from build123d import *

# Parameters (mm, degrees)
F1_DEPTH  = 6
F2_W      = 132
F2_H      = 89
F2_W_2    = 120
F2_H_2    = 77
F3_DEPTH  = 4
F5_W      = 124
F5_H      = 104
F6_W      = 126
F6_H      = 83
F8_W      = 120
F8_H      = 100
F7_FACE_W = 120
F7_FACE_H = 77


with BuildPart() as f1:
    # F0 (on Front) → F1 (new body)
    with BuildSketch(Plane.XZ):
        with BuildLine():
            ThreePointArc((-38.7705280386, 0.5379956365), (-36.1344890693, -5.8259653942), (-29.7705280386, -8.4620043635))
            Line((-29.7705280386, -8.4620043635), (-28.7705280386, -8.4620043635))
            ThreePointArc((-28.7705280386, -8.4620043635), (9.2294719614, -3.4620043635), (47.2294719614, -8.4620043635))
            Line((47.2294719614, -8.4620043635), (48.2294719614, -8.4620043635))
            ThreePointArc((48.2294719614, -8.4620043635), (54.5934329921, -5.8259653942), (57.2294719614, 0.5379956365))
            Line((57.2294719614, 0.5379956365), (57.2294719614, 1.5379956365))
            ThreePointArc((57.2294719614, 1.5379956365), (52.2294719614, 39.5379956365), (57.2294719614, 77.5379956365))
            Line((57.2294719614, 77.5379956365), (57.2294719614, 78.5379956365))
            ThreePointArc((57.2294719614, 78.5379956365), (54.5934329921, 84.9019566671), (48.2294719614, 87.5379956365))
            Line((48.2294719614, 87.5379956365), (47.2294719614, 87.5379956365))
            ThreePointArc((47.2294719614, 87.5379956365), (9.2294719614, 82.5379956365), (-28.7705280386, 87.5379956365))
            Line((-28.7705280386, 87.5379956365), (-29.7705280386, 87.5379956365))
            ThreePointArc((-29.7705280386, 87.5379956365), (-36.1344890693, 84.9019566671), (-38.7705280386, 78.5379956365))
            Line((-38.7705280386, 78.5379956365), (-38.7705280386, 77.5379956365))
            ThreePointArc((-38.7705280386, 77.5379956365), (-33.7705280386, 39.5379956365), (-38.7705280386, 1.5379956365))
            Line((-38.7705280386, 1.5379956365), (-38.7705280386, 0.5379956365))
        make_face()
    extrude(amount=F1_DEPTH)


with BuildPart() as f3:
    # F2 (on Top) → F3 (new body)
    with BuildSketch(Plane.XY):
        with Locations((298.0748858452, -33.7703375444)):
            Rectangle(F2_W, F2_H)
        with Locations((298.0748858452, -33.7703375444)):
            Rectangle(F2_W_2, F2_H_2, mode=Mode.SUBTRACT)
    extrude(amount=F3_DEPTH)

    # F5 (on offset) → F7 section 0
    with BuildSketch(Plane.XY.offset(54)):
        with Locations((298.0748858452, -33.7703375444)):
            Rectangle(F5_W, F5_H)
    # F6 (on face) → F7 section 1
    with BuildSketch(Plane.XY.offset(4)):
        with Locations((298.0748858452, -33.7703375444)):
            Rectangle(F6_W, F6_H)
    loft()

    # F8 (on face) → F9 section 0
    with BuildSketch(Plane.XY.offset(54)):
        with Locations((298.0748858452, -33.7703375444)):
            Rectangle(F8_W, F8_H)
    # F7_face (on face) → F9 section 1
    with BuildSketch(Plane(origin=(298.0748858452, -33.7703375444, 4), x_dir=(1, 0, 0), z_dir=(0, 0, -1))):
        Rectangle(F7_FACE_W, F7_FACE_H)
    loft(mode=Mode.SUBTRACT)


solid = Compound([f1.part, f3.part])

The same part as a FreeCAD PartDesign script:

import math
import FreeCAD as App
import Part
import Sketcher
Q = App.Units.Quantity


def add_polygon(sketch, points):
    """Adds a closed chain of lines whose ends are joined by coincident constraints."""
    first, n = sketch.GeometryCount, len(points)
    for a, b in zip(points, points[1:] + points[:1]):
        sketch.addGeometry(Part.LineSegment(App.Vector(*a, 0), App.Vector(*b, 0)), False)
    for i in range(n):
        sketch.addConstraint(Sketcher.Constraint("Coincident", first + i, 2, first + (i + 1) % n, 1))

doc = App.newDocument("Part")
body = doc.addObject("PartDesign::Body", "Body")

# Sketch on XZ plane
sketch1 = body.newObject("Sketcher::SketchObject", "Sketch")
sketch1.AttachmentSupport = (doc.getObject("XZ_Plane"), [""])
sketch1.MapMode = "FlatFace"
sketch1.addGeometry(Part.ArcOfCircle(Part.Circle(App.Vector(-29.8, 0.5, 0), App.Vector(0, 0, 1), 9), math.radians(180), math.radians(270)), False)
sketch1.addGeometry(Part.LineSegment(App.Vector(-29.8, -8.5, 0), App.Vector(-28.8, -8.5, 0)), False)
sketch1.addGeometry(Part.ArcOfCircle(Part.Circle(App.Vector(9.2, -150.4, 0), App.Vector(0, 0, 1), 146.9), math.radians(75), math.radians(105)), False)
sketch1.addGeometry(Part.LineSegment(App.Vector(47.2, -8.5, 0), App.Vector(48.2, -8.5, 0)), False)
sketch1.addGeometry(Part.ArcOfCircle(Part.Circle(App.Vector(48.2, 0.5, 0), App.Vector(0, 0, 1), 9), math.radians(-90), math.radians(0)), False)
sketch1.addGeometry(Part.LineSegment(App.Vector(57.2, 0.5, 0), App.Vector(57.2, 1.5, 0)), False)
sketch1.addGeometry(Part.ArcOfCircle(Part.Circle(App.Vector(199.1, 39.5, 0), App.Vector(0, 0, 1), 146.9), math.radians(165), math.radians(195)), False)
sketch1.addGeometry(Part.LineSegment(App.Vector(57.2, 77.5, 0), App.Vector(57.2, 78.5, 0)), False)
sketch1.addGeometry(Part.ArcOfCircle(Part.Circle(App.Vector(48.2, 78.5, 0), App.Vector(0, 0, 1), 9), math.radians(0), math.radians(90)), False)
sketch1.addGeometry(Part.LineSegment(App.Vector(48.2, 87.5, 0), App.Vector(47.2, 87.5, 0)), False)
sketch1.addGeometry(Part.ArcOfCircle(Part.Circle(App.Vector(9.2, 229.4, 0), App.Vector(0, 0, 1), 146.9), math.radians(-105), math.radians(-75)), False)
sketch1.addGeometry(Part.LineSegment(App.Vector(-28.8, 87.5, 0), App.Vector(-29.8, 87.5, 0)), False)
sketch1.addGeometry(Part.ArcOfCircle(Part.Circle(App.Vector(-29.8, 78.5, 0), App.Vector(0, 0, 1), 9), math.radians(90), math.radians(180)), False)
sketch1.addGeometry(Part.LineSegment(App.Vector(-38.8, 78.5, 0), App.Vector(-38.8, 77.5, 0)), False)
sketch1.addGeometry(Part.ArcOfCircle(Part.Circle(App.Vector(-180.7, 39.5, 0), App.Vector(0, 0, 1), 146.9), math.radians(-15), math.radians(15)), False)
sketch1.addGeometry(Part.LineSegment(App.Vector(-38.8, 1.5, 0), App.Vector(-38.8, 0.5, 0)), False)
sketch1.addConstraint(Sketcher.Constraint("Tangent", 0, 2, 1, 1))
sketch1.addConstraint(Sketcher.Constraint("Coincident", 1, 2, 2, 2))
sketch1.addConstraint(Sketcher.Constraint("Coincident", 2, 1, 3, 1))
sketch1.addConstraint(Sketcher.Constraint("Tangent", 3, 2, 4, 1))
sketch1.addConstraint(Sketcher.Constraint("Tangent", 4, 2, 5, 1))
sketch1.addConstraint(Sketcher.Constraint("Coincident", 5, 2, 6, 2))
sketch1.addConstraint(Sketcher.Constraint("Coincident", 6, 1, 7, 1))
sketch1.addConstraint(Sketcher.Constraint("Tangent", 7, 2, 8, 1))
sketch1.addConstraint(Sketcher.Constraint("Tangent", 8, 2, 9, 1))
sketch1.addConstraint(Sketcher.Constraint("Coincident", 9, 2, 10, 2))
sketch1.addConstraint(Sketcher.Constraint("Coincident", 10, 1, 11, 1))
sketch1.addConstraint(Sketcher.Constraint("Tangent", 11, 2, 12, 1))
sketch1.addConstraint(Sketcher.Constraint("Tangent", 12, 2, 13, 1))
sketch1.addConstraint(Sketcher.Constraint("Coincident", 13, 2, 14, 2))
sketch1.addConstraint(Sketcher.Constraint("Coincident", 14, 1, 15, 1))
sketch1.addConstraint(Sketcher.Constraint("Tangent", 15, 2, 0, 1))
sketch1.addConstraint(Sketcher.Constraint("Horizontal", 1))
sketch1.addConstraint(Sketcher.Constraint("Horizontal", 3))
sketch1.addConstraint(Sketcher.Constraint("Vertical", 5))
sketch1.addConstraint(Sketcher.Constraint("Vertical", 7))
sketch1.addConstraint(Sketcher.Constraint("Horizontal", 9))
sketch1.addConstraint(Sketcher.Constraint("Horizontal", 11))
sketch1.addConstraint(Sketcher.Constraint("Vertical", 13))
sketch1.addConstraint(Sketcher.Constraint("Vertical", 15))
sketch1.addConstraint(Sketcher.Constraint("Equal", 0, 4))
sketch1.addConstraint(Sketcher.Constraint("Equal", 2, 6))
sketch1.addConstraint(Sketcher.Constraint("Equal", 4, 8))
sketch1.addConstraint(Sketcher.Constraint("Equal", 6, 10))
sketch1.addConstraint(Sketcher.Constraint("Equal", 8, 12))
sketch1.addConstraint(Sketcher.Constraint("Equal", 10, 14))
sketch1.addConstraint(Sketcher.Constraint("Horizontal", 0, 3, 4, 3))
sketch1.addConstraint(Sketcher.Constraint("Horizontal", 8, 3, 12, 3))
sketch1.addConstraint(Sketcher.Constraint("Horizontal", 6, 3, 14, 3))
sketch1.addConstraint(Sketcher.Constraint("Horizontal", 6, 1, 13, 2))
sketch1.addConstraint(Sketcher.Constraint("Horizontal", 5, 2, 14, 1))
sketch1.addConstraint(Sketcher.Constraint("Vertical", 4, 3, 8, 3))
sketch1.addConstraint(Sketcher.Constraint("Vertical", 2, 3, 10, 3))
sketch1.addConstraint(Sketcher.Constraint("Vertical", 2, 1, 9, 2))
sketch1.addConstraint(Sketcher.Constraint("Equal", 1, 3))
sketch1.addConstraint(Sketcher.Constraint("Equal", 11, 5))
sketch1.addConstraint(Sketcher.Constraint("Equal", 5, 7))
sketch1.addConstraint(Sketcher.Constraint("Radius", 0, Q("9 mm")))
sketch1.addConstraint(Sketcher.Constraint("Radius", 2, Q("146.9 mm")))
sketch1.addConstraint(Sketcher.Constraint("DistanceX", 1, 1, 1, 2, Q("1 mm")))
sketch1.addConstraint(Sketcher.Constraint("DistanceX", 0, 3, 2, 3, Q("39 mm")))
sketch1.addConstraint(Sketcher.Constraint("DistanceY", 4, 3, 6, 3, Q("39 mm")))
sketch1.addConstraint(Sketcher.Constraint("DistanceX", 0, 3, -1, 1, Q("29.770528 mm")))
sketch1.addConstraint(Sketcher.Constraint("DistanceY", -1, 1, 0, 3, Q("0.537996 mm")))
pad1 = body.newObject("PartDesign::Pad", "Pad")
pad1.Profile = sketch1
pad1.Length = 6
body2 = doc.addObject("PartDesign::Body", "Body001")

# Sketch on XY plane
sketch2 = body2.newObject("Sketcher::SketchObject", "Sketch001")
sketch2.AttachmentSupport = (doc.getObject("XY_Plane001"), [""])
sketch2.MapMode = "FlatFace"
add_polygon(sketch2, [(232, 11), (232, -78), (364, -78), (364, 11)])  # lines 0-3
add_polygon(sketch2, [(358, -72), (238, -72), (238, 5), (358, 5)])  # lines 4-7
sketch2.addConstraint(Sketcher.Constraint("Vertical", 0))
sketch2.addConstraint(Sketcher.Constraint("Horizontal", 1))
sketch2.addConstraint(Sketcher.Constraint("Vertical", 2))
sketch2.addConstraint(Sketcher.Constraint("Horizontal", 3))
sketch2.addConstraint(Sketcher.Constraint("Horizontal", 4))
sketch2.addConstraint(Sketcher.Constraint("Vertical", 5))
sketch2.addConstraint(Sketcher.Constraint("Horizontal", 6))
sketch2.addConstraint(Sketcher.Constraint("Vertical", 7))
sketch2.addConstraint(Sketcher.Constraint("DistanceX", 1, 1, 1, 2, Q("132 mm")))
sketch2.addConstraint(Sketcher.Constraint("DistanceX", 4, 2, 4, 1, Q("120 mm")))
sketch2.addConstraint(Sketcher.Constraint("DistanceY", 0, 2, 0, 1, Q("89 mm")))
sketch2.addConstraint(Sketcher.Constraint("DistanceY", 5, 1, 5, 2, Q("77 mm")))
sketch2.addConstraint(Sketcher.Constraint("DistanceX", 0, 2, 4, 2, Q("6 mm")))
sketch2.addConstraint(Sketcher.Constraint("DistanceY", 0, 2, 4, 2, Q("6 mm")))
sketch2.addConstraint(Sketcher.Constraint("DistanceX", -1, 1, 0, 2, Q("232.074886 mm")))
sketch2.addConstraint(Sketcher.Constraint("DistanceY", 0, 2, -1, 1, Q("78.270338 mm")))
pad2 = body2.newObject("PartDesign::Pad", "Pad001")
pad2.Profile = sketch2
pad2.Length = 4

# Sketch on XY plane
sketch3 = body2.newObject("Sketcher::SketchObject", "Sketch002")
sketch3.AttachmentSupport = (doc.getObject("XY_Plane001"), [""])
sketch3.MapMode = "FlatFace"
sketch3.AttachmentOffset = App.Placement(App.Vector(0, 0, 54), App.Rotation())
add_polygon(sketch3, [(236, 18), (236, -86), (360, -86), (360, 18)])  # lines 0-3
sketch3.addConstraint(Sketcher.Constraint("Vertical", 0))
sketch3.addConstraint(Sketcher.Constraint("Horizontal", 1))
sketch3.addConstraint(Sketcher.Constraint("Vertical", 2))
sketch3.addConstraint(Sketcher.Constraint("Horizontal", 3))
sketch3.addConstraint(Sketcher.Constraint("DistanceX", 1, 1, 1, 2, Q("124 mm")))
sketch3.addConstraint(Sketcher.Constraint("DistanceY", 0, 2, 0, 1, Q("104 mm")))
sketch3.addConstraint(Sketcher.Constraint("DistanceX", -1, 1, 0, 2, Q("236.074886 mm")))
sketch3.addConstraint(Sketcher.Constraint("DistanceY", 0, 2, -1, 1, Q("85.770338 mm")))

# Sketch on XY plane
sketch4 = body2.newObject("Sketcher::SketchObject", "Sketch003")
sketch4.AttachmentSupport = (doc.getObject("XY_Plane001"), [""])
sketch4.MapMode = "FlatFace"
sketch4.AttachmentOffset = App.Placement(App.Vector(0, 0, 4), App.Rotation())
add_polygon(sketch4, [(235, 8), (235, -75), (361, -75), (361, 8)])  # lines 0-3
sketch4.addConstraint(Sketcher.Constraint("Vertical", 0))
sketch4.addConstraint(Sketcher.Constraint("Horizontal", 1))
sketch4.addConstraint(Sketcher.Constraint("Vertical", 2))
sketch4.addConstraint(Sketcher.Constraint("Horizontal", 3))
sketch4.addConstraint(Sketcher.Constraint("DistanceX", 1, 1, 1, 2, Q("126 mm")))
sketch4.addConstraint(Sketcher.Constraint("DistanceY", 0, 2, 0, 1, Q("83 mm")))
sketch4.addConstraint(Sketcher.Constraint("DistanceX", -1, 1, 0, 2, Q("235.074886 mm")))
sketch4.addConstraint(Sketcher.Constraint("DistanceY", 0, 2, -1, 1, Q("75.270338 mm")))

additiveloft = body2.newObject("PartDesign::AdditiveLoft", "AdditiveLoft")
additiveloft.Profile = sketch3
additiveloft.Sections = [sketch4]

# Sketch on XY plane
sketch5 = body2.newObject("Sketcher::SketchObject", "Sketch004")
sketch5.AttachmentSupport = (doc.getObject("XY_Plane001"), [""])
sketch5.MapMode = "FlatFace"
sketch5.AttachmentOffset = App.Placement(App.Vector(0, 0, 54), App.Rotation())
add_polygon(sketch5, [(238, 16), (238, -84), (358, -84), (358, 16)])  # lines 0-3
sketch5.addConstraint(Sketcher.Constraint("Vertical", 0))
sketch5.addConstraint(Sketcher.Constraint("Horizontal", 1))
sketch5.addConstraint(Sketcher.Constraint("Vertical", 2))
sketch5.addConstraint(Sketcher.Constraint("Horizontal", 3))
sketch5.addConstraint(Sketcher.Constraint("DistanceX", 1, 1, 1, 2, Q("120 mm")))
sketch5.addConstraint(Sketcher.Constraint("DistanceY", 0, 2, 0, 1, Q("100 mm")))
sketch5.addConstraint(Sketcher.Constraint("DistanceX", -1, 1, 0, 2, Q("238.074886 mm")))
sketch5.addConstraint(Sketcher.Constraint("DistanceY", 0, 2, -1, 1, Q("83.770338 mm")))

# Sketch on XY plane
sketch6 = body2.newObject("Sketcher::SketchObject", "Sketch005")
sketch6.AttachmentSupport = (doc.getObject("XY_Plane001"), [""])
sketch6.MapMode = "FlatFace"
sketch6.AttachmentOffset = App.Placement(App.Vector(0, 0, 4), App.Rotation())
add_polygon(sketch6, [(238, -72), (238, 5), (358, 5), (358, -72)])  # lines 0-3
sketch6.addConstraint(Sketcher.Constraint("Vertical", 0))
sketch6.addConstraint(Sketcher.Constraint("Horizontal", 1))
sketch6.addConstraint(Sketcher.Constraint("Vertical", 2))
sketch6.addConstraint(Sketcher.Constraint("Horizontal", 3))
sketch6.addConstraint(Sketcher.Constraint("DistanceX", 1, 1, 1, 2, Q("120 mm")))
sketch6.addConstraint(Sketcher.Constraint("DistanceY", 0, 1, 0, 2, Q("77 mm")))
sketch6.addConstraint(Sketcher.Constraint("DistanceX", -1, 1, 0, 2, Q("238.074886 mm")))
sketch6.addConstraint(Sketcher.Constraint("DistanceY", -1, 1, 0, 2, Q("4.729662 mm")))

subtractiveloft = body2.newObject("PartDesign::SubtractiveLoft", "SubtractiveLoft")
subtractiveloft.Profile = sketch5
subtractiveloft.Sections = [sketch6]

doc.recompute()
